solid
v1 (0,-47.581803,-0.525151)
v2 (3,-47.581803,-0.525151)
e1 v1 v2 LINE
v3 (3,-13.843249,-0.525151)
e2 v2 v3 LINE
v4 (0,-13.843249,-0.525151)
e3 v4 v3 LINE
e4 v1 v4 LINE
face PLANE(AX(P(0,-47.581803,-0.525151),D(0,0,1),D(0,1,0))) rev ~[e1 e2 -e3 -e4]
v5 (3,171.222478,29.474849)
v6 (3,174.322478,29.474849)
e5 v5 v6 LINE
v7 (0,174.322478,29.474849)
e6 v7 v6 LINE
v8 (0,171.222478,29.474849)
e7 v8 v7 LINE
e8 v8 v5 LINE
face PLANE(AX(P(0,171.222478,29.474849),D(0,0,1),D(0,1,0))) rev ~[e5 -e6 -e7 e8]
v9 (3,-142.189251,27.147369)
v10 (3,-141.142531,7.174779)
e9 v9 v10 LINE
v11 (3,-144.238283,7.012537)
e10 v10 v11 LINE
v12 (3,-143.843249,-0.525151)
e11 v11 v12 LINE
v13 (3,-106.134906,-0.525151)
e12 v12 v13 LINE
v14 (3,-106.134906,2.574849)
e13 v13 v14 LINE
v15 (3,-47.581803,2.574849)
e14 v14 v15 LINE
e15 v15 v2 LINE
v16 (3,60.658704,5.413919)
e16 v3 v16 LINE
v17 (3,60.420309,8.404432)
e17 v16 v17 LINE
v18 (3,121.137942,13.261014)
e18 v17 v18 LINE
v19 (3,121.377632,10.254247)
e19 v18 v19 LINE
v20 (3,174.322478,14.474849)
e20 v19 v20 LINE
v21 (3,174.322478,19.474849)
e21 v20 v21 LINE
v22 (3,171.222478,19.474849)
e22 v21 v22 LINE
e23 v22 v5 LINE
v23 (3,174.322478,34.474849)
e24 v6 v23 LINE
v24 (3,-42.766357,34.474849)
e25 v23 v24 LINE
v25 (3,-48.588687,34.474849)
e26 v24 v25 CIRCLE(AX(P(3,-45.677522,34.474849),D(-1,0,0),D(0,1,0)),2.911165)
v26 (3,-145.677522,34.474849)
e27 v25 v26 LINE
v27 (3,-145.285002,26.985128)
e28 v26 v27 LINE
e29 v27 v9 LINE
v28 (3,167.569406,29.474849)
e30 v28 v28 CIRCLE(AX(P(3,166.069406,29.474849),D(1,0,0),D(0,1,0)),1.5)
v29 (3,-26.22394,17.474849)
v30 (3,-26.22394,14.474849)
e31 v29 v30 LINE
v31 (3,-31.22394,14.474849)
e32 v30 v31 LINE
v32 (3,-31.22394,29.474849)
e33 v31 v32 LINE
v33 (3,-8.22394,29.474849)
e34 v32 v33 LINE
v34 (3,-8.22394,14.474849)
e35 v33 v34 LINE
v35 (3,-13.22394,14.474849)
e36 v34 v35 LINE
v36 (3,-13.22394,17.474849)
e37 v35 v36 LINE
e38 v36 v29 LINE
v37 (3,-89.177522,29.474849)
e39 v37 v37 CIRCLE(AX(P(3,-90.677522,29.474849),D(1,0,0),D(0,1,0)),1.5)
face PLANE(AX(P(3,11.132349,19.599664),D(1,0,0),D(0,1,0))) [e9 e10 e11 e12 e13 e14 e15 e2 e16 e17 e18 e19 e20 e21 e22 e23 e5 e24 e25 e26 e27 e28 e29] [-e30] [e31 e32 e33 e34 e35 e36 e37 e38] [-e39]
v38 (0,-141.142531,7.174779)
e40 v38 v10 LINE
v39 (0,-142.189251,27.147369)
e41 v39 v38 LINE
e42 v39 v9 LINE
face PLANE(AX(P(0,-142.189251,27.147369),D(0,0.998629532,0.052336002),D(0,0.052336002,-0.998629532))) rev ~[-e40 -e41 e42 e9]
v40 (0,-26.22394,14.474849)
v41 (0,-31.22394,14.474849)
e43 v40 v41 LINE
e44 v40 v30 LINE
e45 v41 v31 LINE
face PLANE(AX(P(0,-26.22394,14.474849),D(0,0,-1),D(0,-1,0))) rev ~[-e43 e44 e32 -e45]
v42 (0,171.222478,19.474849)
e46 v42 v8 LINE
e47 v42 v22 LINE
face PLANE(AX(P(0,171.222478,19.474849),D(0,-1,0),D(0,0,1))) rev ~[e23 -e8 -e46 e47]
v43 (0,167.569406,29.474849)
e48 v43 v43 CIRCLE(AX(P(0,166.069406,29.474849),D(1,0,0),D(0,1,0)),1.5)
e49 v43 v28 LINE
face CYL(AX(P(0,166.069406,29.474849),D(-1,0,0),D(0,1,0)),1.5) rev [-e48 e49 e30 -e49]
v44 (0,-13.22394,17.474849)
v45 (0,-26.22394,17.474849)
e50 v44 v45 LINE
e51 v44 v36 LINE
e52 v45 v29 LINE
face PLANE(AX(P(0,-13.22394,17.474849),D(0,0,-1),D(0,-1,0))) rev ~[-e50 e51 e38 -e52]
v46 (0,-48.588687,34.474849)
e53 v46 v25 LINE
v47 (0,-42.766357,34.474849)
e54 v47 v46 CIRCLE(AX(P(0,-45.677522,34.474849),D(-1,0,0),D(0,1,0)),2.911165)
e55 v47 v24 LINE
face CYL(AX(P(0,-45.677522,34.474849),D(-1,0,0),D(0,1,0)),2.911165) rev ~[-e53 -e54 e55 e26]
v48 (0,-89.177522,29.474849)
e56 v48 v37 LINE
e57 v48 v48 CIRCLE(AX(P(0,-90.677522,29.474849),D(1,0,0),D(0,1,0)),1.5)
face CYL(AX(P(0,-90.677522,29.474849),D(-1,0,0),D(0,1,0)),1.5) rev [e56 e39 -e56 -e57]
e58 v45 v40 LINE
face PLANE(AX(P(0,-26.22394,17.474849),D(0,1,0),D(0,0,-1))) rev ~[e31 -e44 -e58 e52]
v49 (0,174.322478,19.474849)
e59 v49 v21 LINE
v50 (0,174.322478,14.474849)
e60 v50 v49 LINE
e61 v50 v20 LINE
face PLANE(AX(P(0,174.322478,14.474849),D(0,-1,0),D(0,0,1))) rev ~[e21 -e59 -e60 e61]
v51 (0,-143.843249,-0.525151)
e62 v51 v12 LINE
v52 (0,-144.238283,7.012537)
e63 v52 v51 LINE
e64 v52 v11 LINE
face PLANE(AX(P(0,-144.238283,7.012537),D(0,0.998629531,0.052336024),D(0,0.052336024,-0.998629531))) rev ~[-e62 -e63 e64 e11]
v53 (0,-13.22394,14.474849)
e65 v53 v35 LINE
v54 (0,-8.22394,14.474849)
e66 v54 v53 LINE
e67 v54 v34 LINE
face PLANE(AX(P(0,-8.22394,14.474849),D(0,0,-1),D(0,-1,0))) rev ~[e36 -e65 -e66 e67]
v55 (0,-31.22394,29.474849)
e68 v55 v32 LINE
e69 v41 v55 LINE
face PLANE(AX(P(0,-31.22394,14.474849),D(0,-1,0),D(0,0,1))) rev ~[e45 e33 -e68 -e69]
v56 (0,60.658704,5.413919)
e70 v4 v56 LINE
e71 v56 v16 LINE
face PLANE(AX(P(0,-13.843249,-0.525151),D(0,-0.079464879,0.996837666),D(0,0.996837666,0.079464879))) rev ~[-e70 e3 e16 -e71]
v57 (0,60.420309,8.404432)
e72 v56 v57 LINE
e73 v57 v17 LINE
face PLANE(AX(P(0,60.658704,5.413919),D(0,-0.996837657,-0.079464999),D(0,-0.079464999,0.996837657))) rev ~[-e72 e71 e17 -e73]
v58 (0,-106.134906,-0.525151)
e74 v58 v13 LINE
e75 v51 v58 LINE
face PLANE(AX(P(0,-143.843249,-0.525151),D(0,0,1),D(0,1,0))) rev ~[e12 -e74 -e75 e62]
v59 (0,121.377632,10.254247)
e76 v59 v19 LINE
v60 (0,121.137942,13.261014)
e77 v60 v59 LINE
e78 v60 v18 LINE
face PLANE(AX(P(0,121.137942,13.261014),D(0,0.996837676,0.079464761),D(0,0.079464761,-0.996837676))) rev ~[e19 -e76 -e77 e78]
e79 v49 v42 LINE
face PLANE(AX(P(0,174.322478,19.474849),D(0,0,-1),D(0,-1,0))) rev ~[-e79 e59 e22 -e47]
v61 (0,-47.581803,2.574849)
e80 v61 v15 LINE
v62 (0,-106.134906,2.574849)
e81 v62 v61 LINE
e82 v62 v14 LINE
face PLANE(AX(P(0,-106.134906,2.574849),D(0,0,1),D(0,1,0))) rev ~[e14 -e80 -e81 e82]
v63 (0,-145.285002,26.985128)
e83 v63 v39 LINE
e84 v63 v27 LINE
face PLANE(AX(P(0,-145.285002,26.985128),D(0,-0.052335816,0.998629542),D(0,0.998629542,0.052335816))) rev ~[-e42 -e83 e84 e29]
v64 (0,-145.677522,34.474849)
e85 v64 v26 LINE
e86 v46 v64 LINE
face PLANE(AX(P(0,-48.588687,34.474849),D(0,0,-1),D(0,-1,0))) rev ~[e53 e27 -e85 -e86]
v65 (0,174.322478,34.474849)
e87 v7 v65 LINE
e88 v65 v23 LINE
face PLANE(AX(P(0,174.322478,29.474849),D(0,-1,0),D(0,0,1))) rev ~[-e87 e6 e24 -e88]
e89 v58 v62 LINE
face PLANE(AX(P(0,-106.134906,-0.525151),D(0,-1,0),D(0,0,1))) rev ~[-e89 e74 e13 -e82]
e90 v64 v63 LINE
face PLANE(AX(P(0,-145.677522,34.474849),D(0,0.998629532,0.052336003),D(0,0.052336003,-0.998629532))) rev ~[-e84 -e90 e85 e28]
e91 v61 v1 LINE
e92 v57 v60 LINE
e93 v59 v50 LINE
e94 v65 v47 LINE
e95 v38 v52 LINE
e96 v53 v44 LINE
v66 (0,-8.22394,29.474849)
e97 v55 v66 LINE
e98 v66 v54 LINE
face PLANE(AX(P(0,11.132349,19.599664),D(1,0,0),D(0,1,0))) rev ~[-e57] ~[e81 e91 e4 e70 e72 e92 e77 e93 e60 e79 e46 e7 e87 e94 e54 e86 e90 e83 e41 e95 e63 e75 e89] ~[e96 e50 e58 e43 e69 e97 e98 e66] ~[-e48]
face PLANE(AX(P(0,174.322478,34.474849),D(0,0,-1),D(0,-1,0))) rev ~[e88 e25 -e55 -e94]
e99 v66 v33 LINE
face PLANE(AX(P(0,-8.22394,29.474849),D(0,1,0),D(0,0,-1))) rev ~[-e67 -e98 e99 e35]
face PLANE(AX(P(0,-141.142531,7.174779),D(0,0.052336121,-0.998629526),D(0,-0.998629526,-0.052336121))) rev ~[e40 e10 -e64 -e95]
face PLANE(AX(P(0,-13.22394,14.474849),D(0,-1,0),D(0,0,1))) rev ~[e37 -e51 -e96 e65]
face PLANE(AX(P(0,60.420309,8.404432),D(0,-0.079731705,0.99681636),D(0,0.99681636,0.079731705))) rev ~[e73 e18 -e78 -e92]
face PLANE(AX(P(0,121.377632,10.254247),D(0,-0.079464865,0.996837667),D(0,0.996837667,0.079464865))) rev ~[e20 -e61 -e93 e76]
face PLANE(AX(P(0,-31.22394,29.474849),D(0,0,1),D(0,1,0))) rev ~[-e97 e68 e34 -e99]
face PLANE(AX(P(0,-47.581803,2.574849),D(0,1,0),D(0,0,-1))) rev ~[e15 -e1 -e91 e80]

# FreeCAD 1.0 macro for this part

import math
import FreeCAD as App
import Part
import Sketcher

V = App.Vector


def add_polygon(sketch, points):
    """Adds a closed chain of lines whose ends are joined by coincident constraints."""
    first, n = sketch.GeometryCount, len(points)
    for a, b in zip(points, points[1:] + points[:1]):
        sketch.addGeometry(Part.LineSegment(App.Vector(*a, 0), App.Vector(*b, 0)), False)
    for i in range(n):
        sketch.addConstraint(Sketcher.Constraint("Coincident", first + i, 2, first + (i + 1) % n, 1))

doc = App.newDocument("Part")
body = doc.addObject("PartDesign::Body", "Body")

sketch1 = body.newObject("Sketcher::SketchObject", "Sketch")
sketch1.AttachmentSupport = (doc.getObject("YZ_Plane"), [""])
sketch1.MapMode = "FlatFace"
sketch1.addGeometry(Part.LineSegment(V(-144.238283, 7.012537, 0), V(-143.843249, -0.525151, 0)), False)
sketch1.addGeometry(Part.LineSegment(V(-143.843249, -0.525151, 0), V(-106.134906, -0.525151, 0)), False)
sketch1.addGeometry(Part.LineSegment(V(-106.134906, -0.525151, 0), V(-106.134906, 2.574849, 0)), False)
sketch1.addGeometry(Part.LineSegment(V(-106.134906, 2.574849, 0), V(-47.581803, 2.574849, 0)), False)
sketch1.addGeometry(Part.LineSegment(V(-47.581803, 2.574849, 0), V(-47.581803, -0.525151, 0)), False)
sketch1.addGeometry(Part.LineSegment(V(-47.581803, -0.525151, 0), V(-13.843249, -0.525151, 0)), False)
sketch1.addGeometry(Part.LineSegment(V(-13.843249, -0.525151, 0), V(60.658704, 5.413919, 0)), False)
sketch1.addGeometry(Part.LineSegment(V(60.658704, 5.413919, 0), V(60.420309, 8.404432, 0)), False)
sketch1.addGeometry(Part.LineSegment(V(60.420309, 8.404432, 0), V(121.137942, 13.261014, 0)), False)
sketch1.addGeometry(Part.LineSegment(V(121.137942, 13.261014, 0), V(121.377632, 10.254247, 0)), False)
sketch1.addGeometry(Part.LineSegment(V(121.377632, 10.254247, 0), V(174.322478, 14.474849, 0)), False)
sketch1.addGeometry(Part.LineSegment(V(174.322478, 14.474849, 0), V(174.322478, 19.474849, 0)), False)
sketch1.addGeometry(Part.LineSegment(V(174.322478, 19.474849, 0), V(171.222478, 19.474849, 0)), False)
sketch1.addGeometry(Part.LineSegment(V(171.222478, 19.474849, 0), V(171.222478, 29.474849, 0)), False)
sketch1.addGeometry(Part.LineSegment(V(171.222478, 29.474849, 0), V(174.322478, 29.474849, 0)), False)
sketch1.addGeometry(Part.LineSegment(V(174.322478, 29.474849, 0), V(174.322478, 34.474849, 0)), False)
sketch1.addGeometry(Part.LineSegment(V(174.322478, 34.474849, 0), V(-42.766357, 34.474849, 0)), False)
sketch1.addGeometry(Part.ArcOfCircle(Part.Circle(V(-45.677522, 34.474849, 0), V(0, 0, 1), 2.911165), math.radians(180), math.radians(360)), False)
sketch1.addGeometry(Part.LineSegment(V(-48.588687, 34.474849, 0), V(-145.677522, 34.474849, 0)), False)
sketch1.addGeometry(Part.LineSegment(V(-145.677522, 34.474849, 0), V(-145.285002, 26.985128, 0)), False)
sketch1.addGeometry(Part.LineSegment(V(-145.285002, 26.985128, 0), V(-142.189251, 27.147369, 0)), False)
sketch1.addGeometry(Part.LineSegment(V(-142.189251, 27.147369, 0), V(-141.142531, 7.174779, 0)), False)
sketch1.addGeometry(Part.LineSegment(V(-141.142531, 7.174779, 0), V(-144.238283, 7.012537, 0)), False)
add_polygon(sketch1, [(-31.22394, 14.474849), (-31.22394, 29.474849), (-8.22394, 29.474849), (-8.22394, 14.474849), (-13.22394, 14.474849), (-13.22394, 17.474849), (-26.22394, 17.474849), (-26.22394, 14.474849)])
sketch1.addGeometry(Part.Circle(V(-90.677522, 29.474849, 0), V(0, 0, 1), 1.5), False)
sketch1.addGeometry(Part.Circle(V(166.069406, 29.474849, 0), V(0, 0, 1), 1.5), False)
sketch1.addConstraint([
    Sketcher.Constraint("Coincident", 0, 2, 1, 1),
    Sketcher.Constraint("Coincident", 1, 2, 2, 1),
    Sketcher.Constraint("Coincident", 2, 2, 3, 1),
    Sketcher.Constraint("Coincident", 3, 2, 4, 1),
    Sketcher.Constraint("Coincident", 4, 2, 5, 1),
    Sketcher.Constraint("Coincident", 5, 2, 6, 1),
    Sketcher.Constraint("Coincident", 6, 2, 7, 1),
    Sketcher.Constraint("Coincident", 7, 2, 8, 1),
    Sketcher.Constraint("Coincident", 8, 2, 9, 1),
    Sketcher.Constraint("Coincident", 9, 2, 10, 1),
    Sketcher.Constraint("Coincident", 10, 2, 11, 1),
    Sketcher.Constraint("Coincident", 11, 2, 12, 1),
    Sketcher.Constraint("Coincident", 12, 2, 13, 1),
    Sketcher.Constraint("Coincident", 13, 2, 14, 1),
    Sketcher.Constraint("Coincident", 14, 2, 15, 1),
    Sketcher.Constraint("Coincident", 15, 2, 16, 1),
    Sketcher.Constraint("Coincident", 16, 2, 17, 2),
    Sketcher.Constraint("Coincident", 17, 1, 18, 1),
    Sketcher.Constraint("Coincident", 18, 2, 19, 1),
    Sketcher.Constraint("Coincident", 19, 2, 20, 1),
    Sketcher.Constraint("Coincident", 20, 2, 21, 1),
    Sketcher.Constraint("Coincident", 21, 2, 22, 1),
    Sketcher.Constraint("Coincident", 22, 2, 0, 1),
    Sketcher.Constraint("Horizontal", 1),
    Sketcher.Constraint("Vertical", 2),
    Sketcher.Constraint("Horizontal", 3),
    Sketcher.Constraint("Vertical", 4),
    Sketcher.Constraint("Horizontal", 5),
    Sketcher.Constraint("Vertical", 11),
    Sketcher.Constraint("Horizontal", 12),
    Sketcher.Constraint("Vertical", 13),
    Sketcher.Constraint("Horizontal", 14),
    Sketcher.Constraint("Vertical", 15),
    Sketcher.Constraint("Horizontal", 16),
    Sketcher.Constraint("Horizontal", 18),
    Sketcher.Constraint("Vertical", 23),
    Sketcher.Constraint("Horizontal", 24),
    Sketcher.Constraint("Vertical", 25),
    Sketcher.Constraint("Horizontal", 26),
    Sketcher.Constraint("Vertical", 27),
    Sketcher.Constraint("Horizontal", 28),
    Sketcher.Constraint("Vertical", 29),
    Sketcher.Constraint("Horizontal", 30),
    Sketcher.Constraint("Diameter", 31, 3.0),
    Sketcher.Constraint("Diameter", 32, 3.0),
    Sketcher.Constraint("DistanceX", 24, 1, 24, 2, 23.0),
    Sketcher.Constraint("DistanceX", 26, 2, 26, 1, 5.0),
    Sketcher.Constraint("DistanceX", 28, 2, 28, 1, 13.0),
    Sketcher.Constraint("DistanceY", 11, 1, 11, 2, 5.0),
    Sketcher.Constraint("DistanceY", 13, 1, 13, 2, 10.0),
    Sketcher.Constraint("DistanceY", 15, 1, 15, 2, 5.0),
    Sketcher.Constraint("DistanceY", 23, 1, 23, 2, 15.0),
    Sketcher.Constraint("DistanceY", 25, 2, 25, 1, 15.0),
    Sketcher.Constraint("DistanceY", 27, 1, 27, 2, 3.0),
    Sketcher.Constraint("Distance", 7, 3.0),
    Sketcher.Constraint("Distance", 21, 19.999999),
    Sketcher.Constraint("DistanceX", 12, 2, 12, 1, 3.1),
    Sketcher.Constraint("DistanceX", 14, 1, 14, 2, 3.1),
    Sketcher.Constraint("DistanceY", 2, 1, 2, 2, 3.1),
    Sketcher.Constraint("DistanceY", 4, 2, 4, 1, 3.1),
    Sketcher.Constraint("DistanceX", 31, 3, 17, 3, 45.0),
    Sketcher.Constraint("DistanceY", 31, 3, 17, 3, 5.0),
    Sketcher.Constraint("DistanceY", 32, 3, 17, 3, 5.0),
    Sketcher.Constraint("DistanceY", 0, 2, 31, 3, 30.0),
    Sketcher.Constraint("DistanceY", 10, 2, 32, 3, 15.0),
    Sketcher.Constraint("DistanceY", 4, 2, 17, 1, 35.0),
    Sketcher.Constraint("DistanceX", 18, 2, 31, 3, 55.0),
    Sketcher.Constraint("DistanceY", 23, 2, 16, 2, 5.0),
    Sketcher.Constraint("Distance", 19, 7.5),
    Sketcher.Constraint("Distance", 20, 3.099999),
    Sketcher.Constraint("Distance", 22, 3.1),
    Sketcher.Constraint("DistanceX", 19, 2, -1, 1, 145.285002),
    Sketcher.Constraint("Radius", 17, 2.911165),
    Sketcher.Constraint("Distance", 6, 74.7383),
    Sketcher.Constraint("DistanceX", 6, 2, 32, 3, 105.410702),
    Sketcher.Constraint("DistanceY", 9, 2, 32, 3, 19.220602),
    Sketcher.Constraint("DistanceX", 1, 1, 1, 2, 37.708343),
    Sketcher.Constraint("DistanceX", 3, 1, 3, 2, 58.553103),
    Sketcher.Constraint("DistanceX", 5, 1, 5, 2, 33.738554),
    Sketcher.Constraint("DistanceX", 16, 2, 16, 1, 217.088835),
    Sketcher.Constraint("DistanceY", -1, 1, 17, 3, 34.474849),
    Sketcher.Constraint("DistanceX", 31, 3, -1, 1, 90.677522),
    Sketcher.Constraint("DistanceX", 0, 2, -1, 1, 143.843249),
    Sketcher.Constraint("DistanceY", -1, 1, 6, 2, 5.413919),
    Sketcher.Constraint("DistanceX", -1, 1, 7, 2, 60.420309),
    Sketcher.Constraint("DistanceX", -1, 1, 8, 2, 121.137942),
    Sketcher.Constraint("DistanceX", 20, 2, -1, 1, 142.189251),
    Sketcher.Constraint("DistanceX", 21, 2, -1, 1, 141.142531),
    Sketcher.Constraint("DistanceX", 23, 2, -1, 1, 31.22394),
    Sketcher.Constraint("DistanceY", 7, 2, 8, 2, 4.856582),
    Sketcher.Constraint("DistanceX", 8, 2, 9, 2, 0.23969),
    Sketcher.Constraint("DistanceY", 0, 2, 22, 2, 7.537688),
])
pad1 = body.newObject("PartDesign::Pad", "Pad")
pad1.Profile = sketch1
pad1.Length = 3

doc.recompute()
